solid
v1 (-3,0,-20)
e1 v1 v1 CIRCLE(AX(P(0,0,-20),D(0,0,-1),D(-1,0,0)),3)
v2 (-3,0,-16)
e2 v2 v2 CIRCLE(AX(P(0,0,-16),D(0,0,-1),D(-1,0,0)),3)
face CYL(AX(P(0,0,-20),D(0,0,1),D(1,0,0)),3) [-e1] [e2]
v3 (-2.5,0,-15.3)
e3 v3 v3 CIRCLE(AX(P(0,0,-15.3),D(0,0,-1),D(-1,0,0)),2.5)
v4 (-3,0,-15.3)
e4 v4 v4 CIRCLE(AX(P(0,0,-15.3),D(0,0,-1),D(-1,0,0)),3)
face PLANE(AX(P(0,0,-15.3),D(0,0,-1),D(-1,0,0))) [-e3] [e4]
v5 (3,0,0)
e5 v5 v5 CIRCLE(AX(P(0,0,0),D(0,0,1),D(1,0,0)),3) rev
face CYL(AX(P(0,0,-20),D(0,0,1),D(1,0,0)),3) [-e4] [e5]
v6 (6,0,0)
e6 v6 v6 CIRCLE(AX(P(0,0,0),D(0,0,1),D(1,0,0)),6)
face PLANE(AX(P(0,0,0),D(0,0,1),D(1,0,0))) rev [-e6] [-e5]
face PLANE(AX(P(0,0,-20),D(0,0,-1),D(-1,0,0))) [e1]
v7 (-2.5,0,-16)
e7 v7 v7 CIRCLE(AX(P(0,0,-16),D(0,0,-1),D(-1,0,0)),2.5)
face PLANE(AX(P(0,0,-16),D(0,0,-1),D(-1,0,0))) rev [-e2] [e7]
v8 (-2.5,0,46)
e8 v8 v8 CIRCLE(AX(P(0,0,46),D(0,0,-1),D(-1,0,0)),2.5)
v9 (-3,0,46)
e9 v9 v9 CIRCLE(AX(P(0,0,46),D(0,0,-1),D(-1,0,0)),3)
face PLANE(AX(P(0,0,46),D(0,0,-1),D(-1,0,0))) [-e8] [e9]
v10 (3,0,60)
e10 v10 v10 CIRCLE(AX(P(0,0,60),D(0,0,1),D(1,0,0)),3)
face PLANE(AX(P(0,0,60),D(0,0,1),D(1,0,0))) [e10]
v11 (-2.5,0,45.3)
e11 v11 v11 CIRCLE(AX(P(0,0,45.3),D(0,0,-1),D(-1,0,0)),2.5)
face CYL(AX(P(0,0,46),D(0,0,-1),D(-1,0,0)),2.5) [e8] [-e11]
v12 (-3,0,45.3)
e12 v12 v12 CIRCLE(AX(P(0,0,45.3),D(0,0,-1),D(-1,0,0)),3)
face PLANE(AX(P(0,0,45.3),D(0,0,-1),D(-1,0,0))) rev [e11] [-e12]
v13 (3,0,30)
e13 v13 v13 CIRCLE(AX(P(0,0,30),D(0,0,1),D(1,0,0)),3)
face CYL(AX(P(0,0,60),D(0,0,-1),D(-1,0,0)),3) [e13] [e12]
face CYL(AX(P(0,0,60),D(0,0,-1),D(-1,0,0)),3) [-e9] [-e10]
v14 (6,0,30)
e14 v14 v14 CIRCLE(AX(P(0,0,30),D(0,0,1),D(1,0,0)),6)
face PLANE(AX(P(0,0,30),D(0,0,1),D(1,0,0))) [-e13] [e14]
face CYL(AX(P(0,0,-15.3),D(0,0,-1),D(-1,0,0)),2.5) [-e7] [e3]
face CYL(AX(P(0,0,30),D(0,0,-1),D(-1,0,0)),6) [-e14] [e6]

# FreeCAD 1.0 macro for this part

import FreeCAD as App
import Part
import Sketcher
from FreeCAD import Vector

doc = App.newDocument("Part")
params = doc.addObject("Spreadsheet::Sheet", "Params")
for row, (alias, value) in enumerate([
    ("sketch1_diameter", "12 mm"),
    ("pad1_length", "30 mm"),
    ("sketch2_diameter", "6 mm"),
    ("pad2_length", "20 mm"),
    ("sketch3_diameter", "6 mm"),
    ("pad3_length", "30 mm"),
    ("sketch4_diameter", "5 mm"),
    ("pocket1_length", "0.7 mm"),
    ("sketch5_diameter", "5 mm"),
    ("pocket2_length", "0.7 mm"),
], start=1):
    params.set(f"A{row}", alias)
    params.set(f"B{row}", "=" + value)
    params.setAlias(f"B{row}", alias)

body = doc.addObject("PartDesign::Body", "Body")

# Sketch on XY plane
sketch1 = body.newObject("Sketcher::SketchObject", "Sketch")
sketch1.AttachmentSupport = (doc.getObject("XY_Plane"), [""])
sketch1.MapMode = "FlatFace"
sketch1.addGeometry(Part.Circle(Vector(0, 0, 0), Vector(0, 0, 1), 6), False)
sketch1.addConstraint(Sketcher.Constraint("Coincident", 0, 3, -1, 1))
sketch1.addConstraint(Sketcher.Constraint("Diameter", 0, 12.0))
sketch1.setExpression("Constraints[1]", "Params.sketch1_diameter")
pad1 = body.newObject("PartDesign::Pad", "Pad")
pad1.Profile = sketch1
pad1.setExpression("Length", "Params.pad1_length")

# Sketch on XY plane
sketch2 = body.newObject("Sketcher::SketchObject", "Sketch001")
sketch2.AttachmentSupport = (doc.getObject("XY_Plane"), [""])
sketch2.MapMode = "FlatFace"
sketch2.addGeometry(Part.Circle(Vector(0, 0, 0), Vector(0, 0, 1), 3), False)
sketch2.addConstraint(Sketcher.Constraint("Coincident", 0, 3, -1, 1))
sketch2.addConstraint(Sketcher.Constraint("Diameter", 0, 6.0))
sketch2.setExpression("Constraints[1]", "Params.sketch2_diameter")
pad2 = body.newObject("PartDesign::Pad", "Pad001")
pad2.Profile = sketch2
pad2.setExpression("Length", "Params.pad2_length")
pad2.Reversed = True

# Sketch on XY plane
sketch3 = body.newObject("Sketcher::SketchObject", "Sketch002")
sketch3.AttachmentSupport = (doc.getObject("XY_Plane"), [""])
sketch3.MapMode = "FlatFace"
sketch3.AttachmentOffset = App.Placement(Vector(0, 0, 30), App.Rotation())
sketch3.addGeometry(Part.Circle(Vector(0, 0, 0), Vector(0, 0, 1), 3), False)
sketch3.addConstraint(Sketcher.Constraint("Coincident", 0, 3, -1, 1))
sketch3.addConstraint(Sketcher.Constraint("Diameter", 0, 6.0))
sketch3.setExpression("Constraints[1]", "Params.sketch3_diameter")
pad3 = body.newObject("PartDesign::Pad", "Pad002")
pad3.Profile = sketch3
pad3.setExpression("Length", "Params.pad3_length")

# Sketch on XY plane
sketch4 = body.newObject("Sketcher::SketchObject", "Sketch003")
sketch4.AttachmentSupport = (doc.getObject("XY_Plane"), [""])
sketch4.MapMode = "FlatFace"
sketch4.AttachmentOffset = App.Placement(Vector(0, 0, -16), App.Rotation())
sketch4.addGeometry(Part.Circle(Vector(0, 0, 0), Vector(0, 0, 1), 6.7), False)
sketch4.addGeometry(Part.Circle(Vector(0, 0, 0), Vector(0, 0, 1), 2.5), False)
sketch4.addConstraint(Sketcher.Constraint("Coincident", 0, 3, -1, 1))
sketch4.addConstraint(Sketcher.Constraint("Coincident", 1, 3, -1, 1))
sketch4.addConstraint(Sketcher.Constraint("Diameter", 1, 5.0))
sketch4.addConstraint(Sketcher.Constraint("Diameter", 0, 13.414725))
sketch4.setExpression("Constraints[2]", "Params.sketch4_diameter")
pocket1 = body.newObject("PartDesign::Pocket", "Pocket")
pocket1.Profile = sketch4
pocket1.setExpression("Length", "Params.pocket1_length")
pocket1.Reversed = True

# Sketch on XY plane
sketch5 = body.newObject("Sketcher::SketchObject", "Sketch004")
sketch5.AttachmentSupport = (doc.getObject("XY_Plane"), [""])
sketch5.MapMode = "FlatFace"
sketch5.AttachmentOffset = App.Placement(Vector(0, 0, 45.3), App.Rotation())
sketch5.addGeometry(Part.Circle(Vector(0, 0, 0), Vector(0, 0, 1), 8.3), False)
sketch5.addGeometry(Part.Circle(Vector(0, 0, 0), Vector(0, 0, 1), 2.5), False)
sketch5.addConstraint(Sketcher.Constraint("Coincident", 0, 3, -1, 1))
sketch5.addConstraint(Sketcher.Constraint("Coincident", 1, 3, -1, 1))
sketch5.addConstraint(Sketcher.Constraint("Diameter", 1, 5.0))
sketch5.addConstraint(Sketcher.Constraint("Diameter", 0, 16.582222))
sketch5.setExpression("Constraints[2]", "Params.sketch5_diameter")
pocket2 = body.newObject("PartDesign::Pocket", "Pocket001")
pocket2.Profile = sketch5
pocket2.setExpression("Length", "Params.pocket2_length")
pocket2.Reversed = True

doc.recompute()
